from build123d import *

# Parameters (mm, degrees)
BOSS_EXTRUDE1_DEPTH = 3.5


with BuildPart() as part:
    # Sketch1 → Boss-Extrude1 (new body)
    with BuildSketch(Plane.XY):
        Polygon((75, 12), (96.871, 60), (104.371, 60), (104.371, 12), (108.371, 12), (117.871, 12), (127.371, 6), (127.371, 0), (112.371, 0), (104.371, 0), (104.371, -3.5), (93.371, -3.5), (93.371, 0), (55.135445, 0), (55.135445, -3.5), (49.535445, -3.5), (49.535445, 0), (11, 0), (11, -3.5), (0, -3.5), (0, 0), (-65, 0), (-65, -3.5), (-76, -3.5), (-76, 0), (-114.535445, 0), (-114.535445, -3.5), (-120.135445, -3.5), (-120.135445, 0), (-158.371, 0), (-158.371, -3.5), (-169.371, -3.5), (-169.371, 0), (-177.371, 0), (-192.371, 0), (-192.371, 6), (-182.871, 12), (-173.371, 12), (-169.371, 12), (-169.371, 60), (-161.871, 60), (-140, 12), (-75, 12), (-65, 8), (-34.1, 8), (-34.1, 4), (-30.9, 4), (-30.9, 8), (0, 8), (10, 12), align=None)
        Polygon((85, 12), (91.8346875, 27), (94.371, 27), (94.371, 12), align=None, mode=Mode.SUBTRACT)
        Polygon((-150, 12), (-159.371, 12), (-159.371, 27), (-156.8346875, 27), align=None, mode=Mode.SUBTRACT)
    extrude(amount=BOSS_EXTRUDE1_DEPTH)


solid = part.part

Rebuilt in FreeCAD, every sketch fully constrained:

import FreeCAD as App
import Part
import Sketcher
from FreeCAD import Vector
Q = App.Units.Quantity

doc = App.newDocument("Part")
params = doc.addObject("Spreadsheet::Sheet", "Params")
for row, (alias, value) in enumerate([
    ("sketch1_width", "65 mm"),
    ("sketch1_width2", "23 mm"),
    ("sketch1_width3", "11 mm"),
    ("sketch1_height", "4 mm"),
    ("sketch1_height2", "48 mm"),
    ("pad1_length", "3.5 mm"),
], start=1):
    params.set(f"A{row}", alias)
    params.set(f"B{row}", "=" + value)
    params.setAlias(f"B{row}", alias)

body = doc.addObject("PartDesign::Body", "Body")

# Sketch on XY plane
sketch1 = body.newObject("Sketcher::SketchObject", "Sketch")
sketch1.AttachmentSupport = (doc.getObject("XY_Plane"), [""])
sketch1.MapMode = "FlatFace"
sketch1.addGeometry([
    Part.LineSegment(Vector(96.9, 60, 0), Vector(75, 12, 0)),  # 0
    Part.LineSegment(Vector(75, 12, 0), Vector(10, 12, 0)),  # 1
    Part.LineSegment(Vector(10, 12, 0), Vector(0, 8, 0)),  # 2
    Part.LineSegment(Vector(0, 8, 0), Vector(-30.9, 8, 0)),  # 3
    Part.LineSegment(Vector(-30.9, 8, 0), Vector(-30.9, 4, 0)),  # 4
    Part.LineSegment(Vector(-30.9, 4, 0), Vector(-34.1, 4, 0)),  # 5
    Part.LineSegment(Vector(-34.1, 4, 0), Vector(-34.1, 8, 0)),  # 6
    Part.LineSegment(Vector(-34.1, 8, 0), Vector(-65, 8, 0)),  # 7
    Part.LineSegment(Vector(-65, 8, 0), Vector(-75, 12, 0)),  # 8
    Part.LineSegment(Vector(-75, 12, 0), Vector(-140, 12, 0)),  # 9
    Part.LineSegment(Vector(-140, 12, 0), Vector(-161.9, 60, 0)),  # 10
    Part.LineSegment(Vector(-161.9, 60, 0), Vector(-169.4, 60, 0)),  # 11
    Part.LineSegment(Vector(-169.4, 60, 0), Vector(-169.4, 12, 0)),  # 12
    Part.LineSegment(Vector(-169.4, 12, 0), Vector(-182.9, 12, 0)),  # 13
    Part.LineSegment(Vector(-182.9, 12, 0), Vector(-192.4, 6, 0)),  # 14
    Part.LineSegment(Vector(-192.4, 6, 0), Vector(-192.4, 0, 0)),  # 15
    Part.LineSegment(Vector(-192.4, 0, 0), Vector(-169.4, 0, 0)),  # 16
    Part.LineSegment(Vector(-169.4, 0, 0), Vector(-169.4, -3.5, 0)),  # 17
    Part.LineSegment(Vector(-169.4, -3.5, 0), Vector(-158.4, -3.5, 0)),  # 18
    Part.LineSegment(Vector(-158.4, -3.5, 0), Vector(-158.4, 0, 0)),  # 19
    Part.LineSegment(Vector(-158.4, 0, 0), Vector(-120.1, 0, 0)),  # 20
    Part.LineSegment(Vector(-120.1, 0, 0), Vector(-120.1, -3.5, 0)),  # 21
    Part.LineSegment(Vector(-120.1, -3.5, 0), Vector(-114.5, -3.5, 0)),  # 22
    Part.LineSegment(Vector(-114.5, -3.5, 0), Vector(-114.5, 0, 0)),  # 23
    Part.LineSegment(Vector(-114.5, 0, 0), Vector(-76, 0, 0)),  # 24
    Part.LineSegment(Vector(-76, 0, 0), Vector(-76, -3.5, 0)),  # 25
    Part.LineSegment(Vector(-76, -3.5, 0), Vector(-65, -3.5, 0)),  # 26
    Part.LineSegment(Vector(-65, -3.5, 0), Vector(-65, 0, 0)),  # 27
    Part.LineSegment(Vector(-65, 0, 0), Vector(0, 0, 0)),  # 28
    Part.LineSegment(Vector(0, 0, 0), Vector(0, -3.5, 0)),  # 29
    Part.LineSegment(Vector(0, -3.5, 0), Vector(11, -3.5, 0)),  # 30
    Part.LineSegment(Vector(11, -3.5, 0), Vector(11, 0, 0)),  # 31
    Part.LineSegment(Vector(11, 0, 0), Vector(49.5, 0, 0)),  # 32
    Part.LineSegment(Vector(49.5, 0, 0), Vector(49.5, -3.5, 0)),  # 33
    Part.LineSegment(Vector(49.5, -3.5, 0), Vector(55.1, -3.5, 0)),  # 34
    Part.LineSegment(Vector(55.1, -3.5, 0), Vector(55.1, 0, 0)),  # 35
    Part.LineSegment(Vector(55.1, 0, 0), Vector(93.4, 0, 0)),  # 36
    Part.LineSegment(Vector(93.4, 0, 0), Vector(93.4, -3.5, 0)),  # 37
    Part.LineSegment(Vector(93.4, -3.5, 0), Vector(104.4, -3.5, 0)),  # 38
    Part.LineSegment(Vector(104.4, -3.5, 0), Vector(104.4, 0, 0)),  # 39
    Part.LineSegment(Vector(104.4, 0, 0), Vector(127.4, 0, 0)),  # 40
    Part.LineSegment(Vector(127.4, 0, 0), Vector(127.4, 6, 0)),  # 41
    Part.LineSegment(Vector(127.4, 6, 0), Vector(117.9, 12, 0)),  # 42
    Part.LineSegment(Vector(117.9, 12, 0), Vector(104.4, 12, 0)),  # 43
    Part.LineSegment(Vector(104.4, 12, 0), Vector(104.4, 60, 0)),  # 44
    Part.LineSegment(Vector(104.4, 60, 0), Vector(96.9, 60, 0)),  # 45
    Part.LineSegment(Vector(85, 12, 0), Vector(91.8, 27, 0)),  # 46
    Part.LineSegment(Vector(91.8, 27, 0), Vector(94.4, 27, 0)),  # 47
    Part.LineSegment(Vector(94.4, 27, 0), Vector(94.4, 12, 0)),  # 48
    Part.LineSegment(Vector(94.4, 12, 0), Vector(85, 12, 0)),  # 49
    Part.LineSegment(Vector(-150, 12, 0), Vector(-159.4, 12, 0)),  # 50
    Part.LineSegment(Vector(-159.4, 12, 0), Vector(-159.4, 27, 0)),  # 51
    Part.LineSegment(Vector(-159.4, 27, 0), Vector(-156.8, 27, 0)),  # 52
    Part.LineSegment(Vector(-156.8, 27, 0), Vector(-150, 12, 0)),  # 53
], False)
sketch1.addConstraint([
    Sketcher.Constraint("Coincident", 0, 2, 1, 1),
    Sketcher.Constraint("Coincident", 1, 2, 2, 1),
    Sketcher.Constraint("Coincident", 2, 2, 3, 1),
    Sketcher.Constraint("Coincident", 3, 2, 4, 1),
    Sketcher.Constraint("Coincident", 4, 2, 5, 1),
    Sketcher.Constraint("Coincident", 5, 2, 6, 1),
    Sketcher.Constraint("Coincident", 6, 2, 7, 1),
    Sketcher.Constraint("Coincident", 7, 2, 8, 1),
    Sketcher.Constraint("Coincident", 8, 2, 9, 1),
    Sketcher.Constraint("Coincident", 9, 2, 10, 1),
    Sketcher.Constraint("Coincident", 10, 2, 11, 1),
    Sketcher.Constraint("Coincident", 11, 2, 12, 1),
    Sketcher.Constraint("Coincident", 12, 2, 13, 1),
    Sketcher.Constraint("Coincident", 13, 2, 14, 1),
    Sketcher.Constraint("Coincident", 14, 2, 15, 1),
    Sketcher.Constraint("Coincident", 15, 2, 16, 1),
    Sketcher.Constraint("Coincident", 16, 2, 17, 1),
    Sketcher.Constraint("Coincident", 17, 2, 18, 1),
    Sketcher.Constraint("Coincident", 18, 2, 19, 1),
    Sketcher.Constraint("Coincident", 19, 2, 20, 1),
    Sketcher.Constraint("Coincident", 20, 2, 21, 1),
    Sketcher.Constraint("Coincident", 21, 2, 22, 1),
    Sketcher.Constraint("Coincident", 22, 2, 23, 1),
    Sketcher.Constraint("Coincident", 23, 2, 24, 1),
    Sketcher.Constraint("Coincident", 24, 2, 25, 1),
    Sketcher.Constraint("Coincident", 25, 2, 26, 1),
    Sketcher.Constraint("Coincident", 26, 2, 27, 1),
    Sketcher.Constraint("Coincident", 27, 2, 28, 1),
    Sketcher.Constraint("Coincident", 28, 2, 29, 1),
    Sketcher.Constraint("Coincident", 29, 2, 30, 1),
    Sketcher.Constraint("Coincident", 30, 2, 31, 1),
    Sketcher.Constraint("Coincident", 31, 2, 32, 1),
    Sketcher.Constraint("Coincident", 32, 2, 33, 1),
    Sketcher.Constraint("Coincident", 33, 2, 34, 1),
    Sketcher.Constraint("Coincident", 34, 2, 35, 1),
    Sketcher.Constraint("Coincident", 35, 2, 36, 1),
    Sketcher.Constraint("Coincident", 36, 2, 37, 1),
    Sketcher.Constraint("Coincident", 37, 2, 38, 1),
    Sketcher.Constraint("Coincident", 38, 2, 39, 1),
    Sketcher.Constraint("Coincident", 39, 2, 40, 1),
    Sketcher.Constraint("Coincident", 40, 2, 41, 1),
    Sketcher.Constraint("Coincident", 41, 2, 42, 1),
    Sketcher.Constraint("Coincident", 42, 2, 43, 1),
    Sketcher.Constraint("Coincident", 43, 2, 44, 1),
    Sketcher.Constraint("Coincident", 44, 2, 45, 1),
    Sketcher.Constraint("Coincident", 45, 2, 0, 1),
    Sketcher.Constraint("Coincident", 46, 2, 47, 1),
    Sketcher.Constraint("Coincident", 47, 2, 48, 1),
    Sketcher.Constraint("Coincident", 48, 2, 49, 1),
    Sketcher.Constraint("Coincident", 49, 2, 46, 1),
    Sketcher.Constraint("Coincident", 50, 2, 51, 1),
    Sketcher.Constraint("Coincident", 51, 2, 52, 1),
    Sketcher.Constraint("Coincident", 52, 2, 53, 1),
    Sketcher.Constraint("Coincident", 53, 2, 50, 1),
    Sketcher.Constraint("Horizontal", 1),
    Sketcher.Constraint("Horizontal", 3),
    Sketcher.Constraint("Vertical", 4),
    Sketcher.Constraint("Horizontal", 5),
    Sketcher.Constraint("Vertical", 6),
    Sketcher.Constraint("Horizontal", 7),
    Sketcher.Constraint("Horizontal", 9),
    Sketcher.Constraint("Horizontal", 11),
    Sketcher.Constraint("Vertical", 12),
    Sketcher.Constraint("Horizontal", 13),
    Sketcher.Constraint("Vertical", 15),
    Sketcher.Constraint("Horizontal", 16),
    Sketcher.Constraint("Vertical", 17),
    Sketcher.Constraint("Horizontal", 18),
    Sketcher.Constraint("Vertical", 19),
    Sketcher.Constraint("Horizontal", 20),
    Sketcher.Constraint("Vertical", 21),
    Sketcher.Constraint("Horizontal", 22),
    Sketcher.Constraint("Vertical", 23),
    Sketcher.Constraint("Horizontal", 24),
    Sketcher.Constraint("Vertical", 25),
    Sketcher.Constraint("Horizontal", 26),
    Sketcher.Constraint("Vertical", 27),
    Sketcher.Constraint("Horizontal", 28),
    Sketcher.Constraint("Vertical", 29),
    Sketcher.Constraint("Horizontal", 30),
    Sketcher.Constraint("Vertical", 31),
    Sketcher.Constraint("Horizontal", 32),
    Sketcher.Constraint("Vertical", 33),
    Sketcher.Constraint("Horizontal", 34),
    Sketcher.Constraint("Vertical", 35),
    Sketcher.Constraint("Horizontal", 36),
    Sketcher.Constraint("Vertical", 37),
    Sketcher.Constraint("Horizontal", 38),
    Sketcher.Constraint("Vertical", 39),
    Sketcher.Constraint("Horizontal", 40),
    Sketcher.Constraint("Vertical", 41),
    Sketcher.Constraint("Horizontal", 43),
    Sketcher.Constraint("Vertical", 44),
    Sketcher.Constraint("Horizontal", 45),
    Sketcher.Constraint("Horizontal", 47),
    Sketcher.Constraint("Vertical", 48),
    Sketcher.Constraint("Horizontal", 49),
    Sketcher.Constraint("Horizontal", 50),
    Sketcher.Constraint("Vertical", 51),
    Sketcher.Constraint("Horizontal", 52),
    Sketcher.Constraint("Coincident", 28, 2, -1, 1),
    Sketcher.Constraint("Symmetric", 0, 2, 8, 2, -2),
    Sketcher.Constraint("PointOnObject", 2, 2, -2),
    Sketcher.Constraint("PointOnObject", 15, 2, -1),
    Sketcher.Constraint("PointOnObject", 19, 2, -1),
    Sketcher.Constraint("PointOnObject", 23, 2, -1),
    Sketcher.Constraint("PointOnObject", 31, 2, -1),
    Sketcher.Constraint("PointOnObject", 35, 2, -1),
    Sketcher.Constraint("PointOnObject", 39, 2, -1),
    Sketcher.Constraint("Parallel", 0, 46),
    Sketcher.Constraint("Parallel", 10, 53),
    Sketcher.Constraint("Horizontal", 3, 2, 6, 2),
    Sketcher.Constraint("Horizontal", 9, 2, 12, 2),
    Sketcher.Constraint("Horizontal", 18, 2, 21, 2),
    Sketcher.Constraint("Horizontal", 22, 2, 25, 2),
    Sketcher.Constraint("Horizontal", 26, 2, 29, 2),
    Sketcher.Constraint("Horizontal", 30, 2, 33, 2),
    Sketcher.Constraint("Horizontal", 34, 2, 37, 2),
    Sketcher.Constraint("Horizontal", 14, 2, 41, 2),
    Sketcher.Constraint("Horizontal", 13, 2, 42, 2),
    Sketcher.Constraint("Horizontal", 11, 2, 44, 2),
    Sketcher.Constraint("Horizontal", 43, 2, 48, 2),
    Sketcher.Constraint("Horizontal", 49, 2, 50, 2),
    Sketcher.Constraint("Horizontal", 47, 2, 51, 2),
    Sketcher.Constraint("Vertical", 12, 2, 16, 2),
    Sketcher.Constraint("Vertical", 7, 2, 26, 2),
    Sketcher.Constraint("Vertical", 39, 2, 43, 2),
    Sketcher.Constraint("Equal", 3, 7),
    Sketcher.Constraint("Equal", 1, 9),
    Sketcher.Constraint("Equal", 18, 26),
    Sketcher.Constraint("Equal", 9, 28),
    Sketcher.Constraint("Equal", 26, 30),
    Sketcher.Constraint("Equal", 24, 32),
    Sketcher.Constraint("Equal", 22, 34),
    Sketcher.Constraint("Equal", 20, 36),
    Sketcher.Constraint("Equal", 30, 38),
    Sketcher.Constraint("Equal", 16, 40),
    Sketcher.Constraint("Equal", 13, 43),
    Sketcher.Constraint("Equal", 11, 45),
    Sketcher.Constraint("Equal", 49, 50),
    Sketcher.Constraint("DistanceX", 1, 2, 1, 1, Q("65 mm")),
    Sketcher.Constraint("DistanceX", 16, 1, 16, 2, Q("23 mm")),
    Sketcher.Constraint("DistanceX", 18, 1, 18, 2, Q("11 mm")),
    Sketcher.Constraint("DistanceY", 4, 2, 4, 1, Q("4 mm")),
    Sketcher.Constraint("DistanceY", 12, 2, 12, 1, Q("48 mm")),
    Sketcher.Constraint("DistanceY", 15, 2, 15, 1, Q("6 mm")),
    Sketcher.Constraint("DistanceY", 48, 2, 48, 1, Q("15 mm")),
    Sketcher.Constraint("DistanceX", 3, 2, 3, 1, Q("30.9 mm")),
    Sketcher.Constraint("DistanceX", 11, 2, 11, 1, Q("7.5 mm")),
    Sketcher.Constraint("DistanceX", 13, 2, 13, 1, Q("13.5 mm")),
    Sketcher.Constraint("DistanceX", 22, 1, 22, 2, Q("5.6 mm")),
    Sketcher.Constraint("DistanceY", 17, 2, 17, 1, Q("3.5 mm")),
    Sketcher.Constraint("DistanceX", -1, 1, 0, 2, Q("75 mm")),
    Sketcher.Constraint("DistanceY", -1, 1, 0, 2, Q("12 mm")),
    Sketcher.Constraint("DistanceY", -1, 1, 2, 2, Q("8 mm")),
    Sketcher.Constraint("DistanceX", -1, 1, 49, 2, Q("85 mm")),
    Sketcher.Constraint("DistanceX", 53, 2, -1, 1, Q("150 mm")),
    Sketcher.Constraint("DistanceX", 47, 2, 43, 2, Q("10 mm")),
    Sketcher.Constraint("DistanceX", 49, 2, 49, 1, Q("9.371 mm")),
    Sketcher.Constraint("DistanceX", 20, 1, 20, 2, Q("38.235555 mm")),
])
sketch1.setExpression("Constraints[140]", "Params.sketch1_width")
sketch1.setExpression("Constraints[141]", "Params.sketch1_width2")
sketch1.setExpression("Constraints[142]", "Params.sketch1_width3")
sketch1.setExpression("Constraints[143]", "Params.sketch1_height")
sketch1.setExpression("Constraints[144]", "Params.sketch1_height2")
pad1 = body.newObject("PartDesign::Pad", "Pad")
pad1.Profile = sketch1
pad1.setExpression("Length", "Params.pad1_length")

doc.recompute()
